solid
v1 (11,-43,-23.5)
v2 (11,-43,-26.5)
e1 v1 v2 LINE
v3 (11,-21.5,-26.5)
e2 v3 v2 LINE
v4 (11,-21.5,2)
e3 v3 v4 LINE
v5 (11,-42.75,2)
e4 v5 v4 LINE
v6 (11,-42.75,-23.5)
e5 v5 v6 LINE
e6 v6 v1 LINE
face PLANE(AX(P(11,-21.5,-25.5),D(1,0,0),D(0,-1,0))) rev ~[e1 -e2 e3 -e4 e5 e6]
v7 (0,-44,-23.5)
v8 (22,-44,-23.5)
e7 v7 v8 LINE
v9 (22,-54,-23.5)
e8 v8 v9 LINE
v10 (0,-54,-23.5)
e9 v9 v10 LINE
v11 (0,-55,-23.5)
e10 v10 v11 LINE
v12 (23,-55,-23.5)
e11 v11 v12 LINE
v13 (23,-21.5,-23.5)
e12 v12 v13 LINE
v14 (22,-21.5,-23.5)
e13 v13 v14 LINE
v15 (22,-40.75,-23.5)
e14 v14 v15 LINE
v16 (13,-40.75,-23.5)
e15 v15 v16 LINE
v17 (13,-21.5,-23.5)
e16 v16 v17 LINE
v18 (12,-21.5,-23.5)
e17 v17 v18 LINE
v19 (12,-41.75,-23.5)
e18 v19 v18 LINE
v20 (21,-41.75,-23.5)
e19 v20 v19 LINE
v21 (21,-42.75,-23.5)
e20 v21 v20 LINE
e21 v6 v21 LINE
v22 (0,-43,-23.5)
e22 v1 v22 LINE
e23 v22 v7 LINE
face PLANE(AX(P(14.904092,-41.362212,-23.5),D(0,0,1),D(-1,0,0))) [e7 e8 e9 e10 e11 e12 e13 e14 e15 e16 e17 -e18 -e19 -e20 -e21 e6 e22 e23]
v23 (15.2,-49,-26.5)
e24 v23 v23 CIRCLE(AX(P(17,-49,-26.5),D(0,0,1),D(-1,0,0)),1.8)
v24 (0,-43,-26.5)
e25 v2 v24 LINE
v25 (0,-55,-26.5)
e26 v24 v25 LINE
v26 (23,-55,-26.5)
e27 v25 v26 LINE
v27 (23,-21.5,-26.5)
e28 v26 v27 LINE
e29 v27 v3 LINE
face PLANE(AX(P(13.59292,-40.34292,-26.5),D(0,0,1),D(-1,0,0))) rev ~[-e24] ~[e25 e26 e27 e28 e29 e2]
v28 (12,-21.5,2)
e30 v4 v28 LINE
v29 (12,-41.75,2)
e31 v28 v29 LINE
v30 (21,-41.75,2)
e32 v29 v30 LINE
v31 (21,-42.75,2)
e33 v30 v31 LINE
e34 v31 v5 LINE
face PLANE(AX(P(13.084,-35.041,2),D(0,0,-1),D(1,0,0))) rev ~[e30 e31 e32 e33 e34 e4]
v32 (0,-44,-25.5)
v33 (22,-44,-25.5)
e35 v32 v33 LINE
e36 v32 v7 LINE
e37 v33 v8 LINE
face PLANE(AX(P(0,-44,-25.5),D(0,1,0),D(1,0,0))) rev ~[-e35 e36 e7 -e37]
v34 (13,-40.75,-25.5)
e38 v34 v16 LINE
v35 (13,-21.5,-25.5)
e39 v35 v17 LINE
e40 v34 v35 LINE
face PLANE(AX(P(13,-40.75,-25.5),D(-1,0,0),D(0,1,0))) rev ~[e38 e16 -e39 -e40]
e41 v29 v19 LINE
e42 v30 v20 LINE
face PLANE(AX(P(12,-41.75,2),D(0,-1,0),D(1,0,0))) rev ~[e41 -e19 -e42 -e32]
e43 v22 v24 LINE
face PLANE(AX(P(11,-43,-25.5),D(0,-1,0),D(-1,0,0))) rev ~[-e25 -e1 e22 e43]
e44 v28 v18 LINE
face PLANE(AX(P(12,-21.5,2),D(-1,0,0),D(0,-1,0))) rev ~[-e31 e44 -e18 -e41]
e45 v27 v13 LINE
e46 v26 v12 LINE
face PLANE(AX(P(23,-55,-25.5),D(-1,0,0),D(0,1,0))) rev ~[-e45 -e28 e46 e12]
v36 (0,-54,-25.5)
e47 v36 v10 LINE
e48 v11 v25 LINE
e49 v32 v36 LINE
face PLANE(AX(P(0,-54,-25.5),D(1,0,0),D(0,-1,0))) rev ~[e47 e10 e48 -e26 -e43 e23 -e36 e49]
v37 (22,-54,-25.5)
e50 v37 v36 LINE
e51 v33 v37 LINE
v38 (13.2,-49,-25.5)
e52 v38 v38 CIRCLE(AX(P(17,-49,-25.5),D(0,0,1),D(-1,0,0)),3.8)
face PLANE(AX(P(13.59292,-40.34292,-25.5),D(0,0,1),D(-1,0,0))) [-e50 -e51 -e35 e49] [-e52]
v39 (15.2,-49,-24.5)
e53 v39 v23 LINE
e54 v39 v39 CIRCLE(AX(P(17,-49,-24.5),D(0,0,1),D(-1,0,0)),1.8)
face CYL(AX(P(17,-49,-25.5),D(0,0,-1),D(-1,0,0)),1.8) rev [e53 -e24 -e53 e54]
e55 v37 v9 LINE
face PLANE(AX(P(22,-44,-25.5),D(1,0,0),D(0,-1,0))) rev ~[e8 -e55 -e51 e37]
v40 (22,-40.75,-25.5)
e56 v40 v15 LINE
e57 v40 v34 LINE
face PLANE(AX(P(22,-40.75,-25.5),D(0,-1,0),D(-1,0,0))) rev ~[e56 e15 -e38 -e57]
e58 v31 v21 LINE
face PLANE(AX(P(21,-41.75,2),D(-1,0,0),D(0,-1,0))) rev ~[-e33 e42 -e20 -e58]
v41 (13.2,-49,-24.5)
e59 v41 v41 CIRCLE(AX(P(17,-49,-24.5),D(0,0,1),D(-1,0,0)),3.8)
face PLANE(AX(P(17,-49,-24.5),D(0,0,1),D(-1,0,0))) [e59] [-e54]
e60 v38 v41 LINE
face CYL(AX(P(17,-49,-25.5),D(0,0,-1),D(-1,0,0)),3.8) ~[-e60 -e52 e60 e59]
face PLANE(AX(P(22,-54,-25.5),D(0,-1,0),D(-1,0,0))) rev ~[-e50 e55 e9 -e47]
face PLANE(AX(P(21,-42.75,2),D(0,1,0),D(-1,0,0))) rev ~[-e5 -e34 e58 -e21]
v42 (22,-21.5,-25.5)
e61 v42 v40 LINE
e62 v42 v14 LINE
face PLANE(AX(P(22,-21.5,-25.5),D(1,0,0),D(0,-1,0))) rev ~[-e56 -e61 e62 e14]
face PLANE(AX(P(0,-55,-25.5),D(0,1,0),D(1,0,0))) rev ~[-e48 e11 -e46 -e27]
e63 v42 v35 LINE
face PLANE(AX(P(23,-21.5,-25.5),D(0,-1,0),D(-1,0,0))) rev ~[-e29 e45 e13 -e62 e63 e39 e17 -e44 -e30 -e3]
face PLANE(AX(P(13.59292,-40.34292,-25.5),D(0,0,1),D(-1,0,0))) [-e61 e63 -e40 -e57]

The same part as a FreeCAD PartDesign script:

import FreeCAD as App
import Part
import Sketcher
Q = App.Units.Quantity


def add_polygon(sketch, points):
    """Adds a closed chain of lines whose ends are joined by coincident constraints."""
    first, n = sketch.GeometryCount, len(points)
    for a, b in zip(points, points[1:] + points[:1]):
        sketch.addGeometry(Part.LineSegment(App.Vector(*a, 0), App.Vector(*b, 0)), False)
    for i in range(n):
        sketch.addConstraint(Sketcher.Constraint("Coincident", first + i, 2, first + (i + 1) % n, 1))

doc = App.newDocument("Part")
body = doc.addObject("PartDesign::Body", "Body")

sketch1 = body.newObject("Sketcher::SketchObject", "Sketch")
sketch1.AttachmentSupport = (doc.getObject("XY_Plane"), [""])
sketch1.MapMode = "FlatFace"
sketch1.AttachmentOffset = App.Placement(App.Vector(0, 0, 10), App.Rotation())
add_polygon(sketch1, [(-11, 0), (0, 0), (0, 12), (-23, 12), (-23, -21.5), (-11, -21.5)])
sketch1.addGeometry(Part.Circle(App.Vector(-17, 6, 0), App.Vector(0, 0, 1), 1.8), False)
sketch1.addConstraint(Sketcher.Constraint("Horizontal", 0))
sketch1.addConstraint(Sketcher.Constraint("Vertical", 1))
sketch1.addConstraint(Sketcher.Constraint("Horizontal", 2))
sketch1.addConstraint(Sketcher.Constraint("Vertical", 3))
sketch1.addConstraint(Sketcher.Constraint("Horizontal", 4))
sketch1.addConstraint(Sketcher.Constraint("Vertical", 5))
sketch1.addConstraint(Sketcher.Constraint("Coincident", 0, 2, -1, 1))
sketch1.addConstraint(Sketcher.Constraint("Equal", 4, 1))
sketch1.addConstraint(Sketcher.Constraint("Diameter", 6, Q("3.6 mm")))
sketch1.addConstraint(Sketcher.Constraint("DistanceX", 0, 1, 0, 2, Q("11 mm")))
sketch1.addConstraint(Sketcher.Constraint("DistanceX", 2, 2, 2, 1, Q("23 mm")))
sketch1.addConstraint(Sketcher.Constraint("DistanceY", 3, 2, 3, 1, Q("33.5 mm")))
sketch1.addConstraint(Sketcher.Constraint("DistanceX", 6, 3, -1, 1, Q("17 mm")))
sketch1.addConstraint(Sketcher.Constraint("DistanceY", -1, 1, 6, 3, Q("6 mm")))
pad1 = body.newObject("PartDesign::Pad", "Pad")
pad1.Profile = sketch1
pad1.Length = 1
body2 = doc.addObject("PartDesign::Body", "Body001")
doc.recompute()

body.Placement = App.Placement(App.Vector(0, 0, -36.5), App.Rotation(App.Vector(0, 0, 1), 0))
boolean = body2.newObject("PartDesign::Boolean", "Boolean")
boolean.Type = "Fuse"
boolean.addObjects([body])
body3 = doc.addObject("PartDesign::Body", "Body002")

sketch2 = body3.newObject("Sketcher::SketchObject", "Sketch001")
sketch2.AttachmentSupport = (doc.getObject("XY_Plane002"), [""])
sketch2.MapMode = "FlatFace"
sketch2.AttachmentOffset = App.Placement(App.Vector(0, 0, 10), App.Rotation())
add_polygon(sketch2, [(0, 12), (-23, 12), (-23, -21.5), (-22, -21.5), (-22, -2.2), (-13, -2.2), (-13, -21.5), (-11, -21.5), (-11, 0), (0, 0), (0, 1), (-22, 1), (-22, 11), (0, 11)])
sketch2.addConstraint(Sketcher.Constraint("Horizontal", 0))
sketch2.addConstraint(Sketcher.Constraint("Vertical", 1))
sketch2.addConstraint(Sketcher.Constraint("Horizontal", 2))
sketch2.addConstraint(Sketcher.Constraint("Vertical", 3))
sketch2.addConstraint(Sketcher.Constraint("Horizontal", 4))
sketch2.addConstraint(Sketcher.Constraint("Vertical", 5))
sketch2.addConstraint(Sketcher.Constraint("Horizontal", 6))
sketch2.addConstraint(Sketcher.Constraint("Vertical", 7))
sketch2.addConstraint(Sketcher.Constraint("Horizontal", 8))
sketch2.addConstraint(Sketcher.Constraint("Vertical", 9))
sketch2.addConstraint(Sketcher.Constraint("Horizontal", 10))
sketch2.addConstraint(Sketcher.Constraint("Vertical", 11))
sketch2.addConstraint(Sketcher.Constraint("Horizontal", 12))
sketch2.addConstraint(Sketcher.Constraint("Vertical", 13))
sketch2.addConstraint(Sketcher.Constraint("Coincident", 8, 2, -1, 1))
sketch2.addConstraint(Sketcher.Constraint("PointOnObject", 12, 2, -2))
sketch2.addConstraint(Sketcher.Constraint("Horizontal", 2, 2, 5, 2))
sketch2.addConstraint(Sketcher.Constraint("Vertical", 3, 2, 10, 2))
sketch2.addConstraint(Sketcher.Constraint("Equal", 2, 9))
sketch2.addConstraint(Sketcher.Constraint("Equal", 9, 13))
sketch2.addConstraint(Sketcher.Constraint("DistanceX", 0, 2, 0, 1, Q("23 mm")))
sketch2.addConstraint(Sketcher.Constraint("DistanceX", 2, 1, 2, 2, Q("1 mm")))
sketch2.addConstraint(Sketcher.Constraint("DistanceX", 4, 1, 4, 2, Q("9 mm")))
sketch2.addConstraint(Sketcher.Constraint("DistanceX", 6, 1, 6, 2, Q("2 mm")))
sketch2.addConstraint(Sketcher.Constraint("DistanceY", 11, 1, 11, 2, Q("10 mm")))
sketch2.addConstraint(Sketcher.Constraint("DistanceY", 1, 2, 1, 1, Q("33.5 mm")))
sketch2.addConstraint(Sketcher.Constraint("DistanceY", 3, 1, 3, 2, Q("19.25 mm")))
pad2 = body3.newObject("PartDesign::Pad", "Pad001")
pad2.Profile = sketch2
pad2.Length = 2
body4 = doc.addObject("PartDesign::Body", "Body003")
doc.recompute()

body3.Placement = App.Placement(App.Vector(0, 0, -35.5), App.Rotation(App.Vector(0, 0, 1), 0))
boolean2 = body4.newObject("PartDesign::Boolean", "Boolean001")
boolean2.Type = "Fuse"
boolean2.addObjects([body3])
body5 = doc.addObject("PartDesign::Body", "Body004")

sketch3 = body5.newObject("Sketcher::SketchObject", "Sketch002")
sketch3.AttachmentSupport = (doc.getObject("XY_Plane004"), [""])
sketch3.MapMode = "FlatFace"
sketch3.AttachmentOffset = App.Placement(App.Vector(0, 0, 10), App.Rotation())
sketch3.addGeometry(Part.Circle(App.Vector(-17, 6, 0), App.Vector(0, 0, 1), 3.8), False)
sketch3.addGeometry(Part.Circle(App.Vector(-17, 6, 0), App.Vector(0, 0, 1), 1.8), False)
sketch3.addConstraint(Sketcher.Constraint("Coincident", 1, 3, 0, 3))
sketch3.addConstraint(Sketcher.Constraint("Diameter", 0, Q("7.6 mm")))
sketch3.addConstraint(Sketcher.Constraint("Diameter", 1, Q("3.6 mm")))
sketch3.addConstraint(Sketcher.Constraint("DistanceX", 0, 3, -1, 1, Q("17 mm")))
sketch3.addConstraint(Sketcher.Constraint("DistanceY", -1, 1, 0, 3, Q("6 mm")))
pad3 = body5.newObject("PartDesign::Pad", "Pad002")
pad3.Profile = sketch3
pad3.Length = 1
body6 = doc.addObject("PartDesign::Body", "Body005")
doc.recompute()

body5.Placement = App.Placement(App.Vector(0, 0, -35.5), App.Rotation(App.Vector(0, 0, 1), 0))
boolean3 = body6.newObject("PartDesign::Boolean", "Boolean002")
boolean3.Type = "Fuse"
boolean3.addObjects([body5])
body7 = doc.addObject("PartDesign::Body", "Body006")

sketch4 = body7.newObject("Sketcher::SketchObject", "Sketch003")
sketch4.AttachmentSupport = (doc.getObject("XY_Plane006"), [""])
sketch4.MapMode = "FlatFace"
add_polygon(sketch4, [(-11, -0.2), (-21, -0.2), (-21, -1.2), (-12, -1.2), (-12, -21.5), (-11, -21.5)])
sketch4.addConstraint(Sketcher.Constraint("Horizontal", 0))
sketch4.addConstraint(Sketcher.Constraint("Vertical", 1))
sketch4.addConstraint(Sketcher.Constraint("Horizontal", 2))
sketch4.addConstraint(Sketcher.Constraint("Vertical", 3))
sketch4.addConstraint(Sketcher.Constraint("Horizontal", 4))
sketch4.addConstraint(Sketcher.Constraint("Vertical", 5))
sketch4.addConstraint(Sketcher.Constraint("Equal", 4, 1))
sketch4.addConstraint(Sketcher.Constraint("DistanceX", 0, 2, 0, 1, Q("10 mm")))
sketch4.addConstraint(Sketcher.Constraint("DistanceX", 2, 1, 2, 2, Q("9 mm")))
sketch4.addConstraint(Sketcher.Constraint("DistanceX", 0, 2, -1, 1, Q("21 mm")))
sketch4.addConstraint(Sketcher.Constraint("DistanceY", 3, 2, 3, 1, Q("20.25 mm")))
sketch4.addConstraint(Sketcher.Constraint("DistanceY", 3, 2, -1, 1, Q("21.5 mm")))
pad4 = body7.newObject("PartDesign::Pad", "Pad003")
pad4.Profile = sketch4
pad4.Length = 27.5
pad4.Reversed = True
body8 = doc.addObject("PartDesign::Body", "Body007")
doc.recompute()

body7.Placement = App.Placement(App.Vector(0, 0, 2), App.Rotation(App.Vector(0, 0, 1), 0))
boolean4 = body8.newObject("PartDesign::Boolean", "Boolean003")
boolean4.Type = "Fuse"
boolean4.addObjects([body7])
doc.recompute()

boolean5 = body8.newObject("PartDesign::Boolean", "Boolean004")
boolean5.Type = "Fuse"
boolean5.addObjects([body2])
doc.recompute()

boolean6 = body8.newObject("PartDesign::Boolean", "Boolean005")
boolean6.Type = "Fuse"
boolean6.addObjects([body4])
doc.recompute()

boolean7 = body8.newObject("PartDesign::Boolean", "Boolean006")
boolean7.Type = "Fuse"
boolean7.addObjects([body6])
body9 = doc.addObject("PartDesign::Body", "Body008")
doc.recompute()

mirroring = doc.addObject("Part::Mirroring", "Mirroring")
mirroring.Source = body8
mirroring.Base = App.Vector(0, 0, 0)
mirroring.Normal = App.Vector(1, 0, 0)
body9.BaseFeature = mirroring
doc.recompute()
body10 = doc.addObject("PartDesign::Body", "Body009")
doc.recompute()

mirroring2 = doc.addObject("Part::Mirroring", "Mirroring001")
mirroring2.Source = body9
mirroring2.Base = App.Vector(0, -21.5, 0)
mirroring2.Normal = App.Vector(0, 1, 0)
body10.BaseFeature = mirroring2
doc.recompute()
body8.Visibility = False
body9.Visibility = False
mirroring.Visibility = False
mirroring2.Visibility = False

doc.recompute()
